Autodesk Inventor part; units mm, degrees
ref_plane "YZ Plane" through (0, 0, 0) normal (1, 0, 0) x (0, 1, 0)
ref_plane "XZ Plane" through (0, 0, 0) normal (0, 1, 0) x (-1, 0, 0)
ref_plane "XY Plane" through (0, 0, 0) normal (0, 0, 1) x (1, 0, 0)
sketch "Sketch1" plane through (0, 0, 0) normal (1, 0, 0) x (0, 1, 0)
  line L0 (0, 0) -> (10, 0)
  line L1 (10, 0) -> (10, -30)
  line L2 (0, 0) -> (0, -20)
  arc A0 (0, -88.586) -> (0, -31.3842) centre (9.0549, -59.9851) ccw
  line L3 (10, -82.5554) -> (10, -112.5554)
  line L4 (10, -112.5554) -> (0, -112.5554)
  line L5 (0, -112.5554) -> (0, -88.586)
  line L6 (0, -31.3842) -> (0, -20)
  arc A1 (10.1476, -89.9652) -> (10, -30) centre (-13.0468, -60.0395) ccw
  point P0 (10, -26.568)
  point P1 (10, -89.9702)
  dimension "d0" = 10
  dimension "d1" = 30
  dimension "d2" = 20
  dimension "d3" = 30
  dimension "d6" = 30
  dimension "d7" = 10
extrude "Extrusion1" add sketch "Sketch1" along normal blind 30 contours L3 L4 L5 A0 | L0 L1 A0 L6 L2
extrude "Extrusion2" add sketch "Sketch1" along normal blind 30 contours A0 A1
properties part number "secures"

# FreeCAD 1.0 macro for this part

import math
import FreeCAD as App
import Part
import Sketcher

V = App.Vector
Q = App.Units.Quantity

doc = App.newDocument("Part")
body = doc.addObject("PartDesign::Body", "Body")
body.AllowCompound = True

# Sketch on YZ plane
sketch1 = body.newObject("Sketcher::SketchObject", "Sketch")
sketch1.AttachmentSupport = (doc.getObject("YZ_Plane"), [""])
sketch1.MapMode = "FlatFace"
sketch1.addGeometry([
    Part.LineSegment(V(10, -113, 0), V(10, -90, 0)),  # 0
    Part.ArcOfCircle(Part.Circle(V(9, -60, 0), V(0, 0, 1), 30), math.radians(-107.57), math.radians(-88.19)),  # 1
    Part.LineSegment(V(0, -89, 0), V(0, -113, 0)),  # 2
    Part.LineSegment(V(0, -113, 0), V(10, -113, 0)),  # 3
    Part.LineSegment(V(10, 0, 0), V(0, 0, 0)),  # 4
    Part.LineSegment(V(0, 0, 0), V(0, -31, 0)),  # 5
    Part.ArcOfCircle(Part.Circle(V(9, -60, 0), V(0, 0, 1), 30), math.radians(88.19), math.radians(107.57)),  # 6
    Part.LineSegment(V(10, -30, 0), V(10, 0, 0)),  # 7
], False)
sketch1.addConstraint([
    Sketcher.Constraint("Coincident", 0, 2, 1, 2),
    Sketcher.Constraint("Coincident", 1, 1, 2, 1),
    Sketcher.Constraint("Coincident", 2, 2, 3, 1),
    Sketcher.Constraint("Coincident", 3, 2, 0, 1),
    Sketcher.Constraint("Coincident", 4, 2, 5, 1),
    Sketcher.Constraint("Coincident", 5, 2, 6, 2),
    Sketcher.Constraint("Coincident", 6, 1, 7, 1),
    Sketcher.Constraint("Coincident", 7, 2, 4, 1),
    Sketcher.Constraint("Vertical", 0),
    Sketcher.Constraint("Vertical", 2),
    Sketcher.Constraint("Horizontal", 3),
    Sketcher.Constraint("Horizontal", 4),
    Sketcher.Constraint("Vertical", 5),
    Sketcher.Constraint("Vertical", 7),
    Sketcher.Constraint("Coincident", 4, 2, -1, 1),
    Sketcher.Constraint("Coincident", 6, 3, 1, 3),
    Sketcher.Constraint("Equal", 1, 6),
    Sketcher.Constraint("PointOnObject", 1, 1, -2),
    Sketcher.Constraint("Vertical", 3, 2, 6, 1),
    Sketcher.Constraint("Radius", 1, Q("30 mm")),
    Sketcher.Constraint("DistanceX", 3, 1, 3, 2, Q("10 mm")),
    Sketcher.Constraint("DistanceY", 7, 1, 7, 2, Q("30 mm")),
    Sketcher.Constraint("DistanceY", 0, 1, 0, 2, Q("22.5851 mm")),
    Sketcher.Constraint("DistanceY", 2, 2, 2, 1, Q("23.9694 mm")),
])
pad1 = body.newObject("PartDesign::Pad", "Pad")
pad1.Profile = sketch1
pad1.Length = 30

# Sketch on YZ plane
sketch2 = body.newObject("Sketcher::SketchObject", "Sketch001")
sketch2.AttachmentSupport = (doc.getObject("YZ_Plane"), [""])
sketch2.MapMode = "FlatFace"
sketch2.addGeometry([
    Part.ArcOfCircle(Part.Circle(V(9, -60, 0), V(0, 0, 1), 30), math.radians(-88), math.radians(88)),
    Part.ArcOfCircle(Part.Circle(V(-13, -60, 0), V(0, 0, 1), 38), math.radians(-52), math.radians(53)),
], False)
sketch2.addConstraint([
    Sketcher.Constraint("Coincident", 0, 1, 1, 1),
    Sketcher.Constraint("Coincident", 1, 2, 0, 2),
    Sketcher.Constraint("Radius", 0, Q("30 mm")),
    Sketcher.Constraint("DistanceX", -1, 1, 1, 2, Q("10 mm")),
    Sketcher.Constraint("DistanceY", 1, 2, -1, 1, Q("30 mm")),
    Sketcher.Constraint("Radius", 1, Q("37.862 mm")),
    Sketcher.Constraint("DistanceX", -1, 1, 0, 3, Q("9.055 mm")),
    Sketcher.Constraint("DistanceX", 1, 3, -1, 1, Q("13.0468 mm")),
])
pad2 = body.newObject("PartDesign::Pad", "Pad001")
pad2.Profile = sketch2
pad2.Length = 30

doc.recompute()
